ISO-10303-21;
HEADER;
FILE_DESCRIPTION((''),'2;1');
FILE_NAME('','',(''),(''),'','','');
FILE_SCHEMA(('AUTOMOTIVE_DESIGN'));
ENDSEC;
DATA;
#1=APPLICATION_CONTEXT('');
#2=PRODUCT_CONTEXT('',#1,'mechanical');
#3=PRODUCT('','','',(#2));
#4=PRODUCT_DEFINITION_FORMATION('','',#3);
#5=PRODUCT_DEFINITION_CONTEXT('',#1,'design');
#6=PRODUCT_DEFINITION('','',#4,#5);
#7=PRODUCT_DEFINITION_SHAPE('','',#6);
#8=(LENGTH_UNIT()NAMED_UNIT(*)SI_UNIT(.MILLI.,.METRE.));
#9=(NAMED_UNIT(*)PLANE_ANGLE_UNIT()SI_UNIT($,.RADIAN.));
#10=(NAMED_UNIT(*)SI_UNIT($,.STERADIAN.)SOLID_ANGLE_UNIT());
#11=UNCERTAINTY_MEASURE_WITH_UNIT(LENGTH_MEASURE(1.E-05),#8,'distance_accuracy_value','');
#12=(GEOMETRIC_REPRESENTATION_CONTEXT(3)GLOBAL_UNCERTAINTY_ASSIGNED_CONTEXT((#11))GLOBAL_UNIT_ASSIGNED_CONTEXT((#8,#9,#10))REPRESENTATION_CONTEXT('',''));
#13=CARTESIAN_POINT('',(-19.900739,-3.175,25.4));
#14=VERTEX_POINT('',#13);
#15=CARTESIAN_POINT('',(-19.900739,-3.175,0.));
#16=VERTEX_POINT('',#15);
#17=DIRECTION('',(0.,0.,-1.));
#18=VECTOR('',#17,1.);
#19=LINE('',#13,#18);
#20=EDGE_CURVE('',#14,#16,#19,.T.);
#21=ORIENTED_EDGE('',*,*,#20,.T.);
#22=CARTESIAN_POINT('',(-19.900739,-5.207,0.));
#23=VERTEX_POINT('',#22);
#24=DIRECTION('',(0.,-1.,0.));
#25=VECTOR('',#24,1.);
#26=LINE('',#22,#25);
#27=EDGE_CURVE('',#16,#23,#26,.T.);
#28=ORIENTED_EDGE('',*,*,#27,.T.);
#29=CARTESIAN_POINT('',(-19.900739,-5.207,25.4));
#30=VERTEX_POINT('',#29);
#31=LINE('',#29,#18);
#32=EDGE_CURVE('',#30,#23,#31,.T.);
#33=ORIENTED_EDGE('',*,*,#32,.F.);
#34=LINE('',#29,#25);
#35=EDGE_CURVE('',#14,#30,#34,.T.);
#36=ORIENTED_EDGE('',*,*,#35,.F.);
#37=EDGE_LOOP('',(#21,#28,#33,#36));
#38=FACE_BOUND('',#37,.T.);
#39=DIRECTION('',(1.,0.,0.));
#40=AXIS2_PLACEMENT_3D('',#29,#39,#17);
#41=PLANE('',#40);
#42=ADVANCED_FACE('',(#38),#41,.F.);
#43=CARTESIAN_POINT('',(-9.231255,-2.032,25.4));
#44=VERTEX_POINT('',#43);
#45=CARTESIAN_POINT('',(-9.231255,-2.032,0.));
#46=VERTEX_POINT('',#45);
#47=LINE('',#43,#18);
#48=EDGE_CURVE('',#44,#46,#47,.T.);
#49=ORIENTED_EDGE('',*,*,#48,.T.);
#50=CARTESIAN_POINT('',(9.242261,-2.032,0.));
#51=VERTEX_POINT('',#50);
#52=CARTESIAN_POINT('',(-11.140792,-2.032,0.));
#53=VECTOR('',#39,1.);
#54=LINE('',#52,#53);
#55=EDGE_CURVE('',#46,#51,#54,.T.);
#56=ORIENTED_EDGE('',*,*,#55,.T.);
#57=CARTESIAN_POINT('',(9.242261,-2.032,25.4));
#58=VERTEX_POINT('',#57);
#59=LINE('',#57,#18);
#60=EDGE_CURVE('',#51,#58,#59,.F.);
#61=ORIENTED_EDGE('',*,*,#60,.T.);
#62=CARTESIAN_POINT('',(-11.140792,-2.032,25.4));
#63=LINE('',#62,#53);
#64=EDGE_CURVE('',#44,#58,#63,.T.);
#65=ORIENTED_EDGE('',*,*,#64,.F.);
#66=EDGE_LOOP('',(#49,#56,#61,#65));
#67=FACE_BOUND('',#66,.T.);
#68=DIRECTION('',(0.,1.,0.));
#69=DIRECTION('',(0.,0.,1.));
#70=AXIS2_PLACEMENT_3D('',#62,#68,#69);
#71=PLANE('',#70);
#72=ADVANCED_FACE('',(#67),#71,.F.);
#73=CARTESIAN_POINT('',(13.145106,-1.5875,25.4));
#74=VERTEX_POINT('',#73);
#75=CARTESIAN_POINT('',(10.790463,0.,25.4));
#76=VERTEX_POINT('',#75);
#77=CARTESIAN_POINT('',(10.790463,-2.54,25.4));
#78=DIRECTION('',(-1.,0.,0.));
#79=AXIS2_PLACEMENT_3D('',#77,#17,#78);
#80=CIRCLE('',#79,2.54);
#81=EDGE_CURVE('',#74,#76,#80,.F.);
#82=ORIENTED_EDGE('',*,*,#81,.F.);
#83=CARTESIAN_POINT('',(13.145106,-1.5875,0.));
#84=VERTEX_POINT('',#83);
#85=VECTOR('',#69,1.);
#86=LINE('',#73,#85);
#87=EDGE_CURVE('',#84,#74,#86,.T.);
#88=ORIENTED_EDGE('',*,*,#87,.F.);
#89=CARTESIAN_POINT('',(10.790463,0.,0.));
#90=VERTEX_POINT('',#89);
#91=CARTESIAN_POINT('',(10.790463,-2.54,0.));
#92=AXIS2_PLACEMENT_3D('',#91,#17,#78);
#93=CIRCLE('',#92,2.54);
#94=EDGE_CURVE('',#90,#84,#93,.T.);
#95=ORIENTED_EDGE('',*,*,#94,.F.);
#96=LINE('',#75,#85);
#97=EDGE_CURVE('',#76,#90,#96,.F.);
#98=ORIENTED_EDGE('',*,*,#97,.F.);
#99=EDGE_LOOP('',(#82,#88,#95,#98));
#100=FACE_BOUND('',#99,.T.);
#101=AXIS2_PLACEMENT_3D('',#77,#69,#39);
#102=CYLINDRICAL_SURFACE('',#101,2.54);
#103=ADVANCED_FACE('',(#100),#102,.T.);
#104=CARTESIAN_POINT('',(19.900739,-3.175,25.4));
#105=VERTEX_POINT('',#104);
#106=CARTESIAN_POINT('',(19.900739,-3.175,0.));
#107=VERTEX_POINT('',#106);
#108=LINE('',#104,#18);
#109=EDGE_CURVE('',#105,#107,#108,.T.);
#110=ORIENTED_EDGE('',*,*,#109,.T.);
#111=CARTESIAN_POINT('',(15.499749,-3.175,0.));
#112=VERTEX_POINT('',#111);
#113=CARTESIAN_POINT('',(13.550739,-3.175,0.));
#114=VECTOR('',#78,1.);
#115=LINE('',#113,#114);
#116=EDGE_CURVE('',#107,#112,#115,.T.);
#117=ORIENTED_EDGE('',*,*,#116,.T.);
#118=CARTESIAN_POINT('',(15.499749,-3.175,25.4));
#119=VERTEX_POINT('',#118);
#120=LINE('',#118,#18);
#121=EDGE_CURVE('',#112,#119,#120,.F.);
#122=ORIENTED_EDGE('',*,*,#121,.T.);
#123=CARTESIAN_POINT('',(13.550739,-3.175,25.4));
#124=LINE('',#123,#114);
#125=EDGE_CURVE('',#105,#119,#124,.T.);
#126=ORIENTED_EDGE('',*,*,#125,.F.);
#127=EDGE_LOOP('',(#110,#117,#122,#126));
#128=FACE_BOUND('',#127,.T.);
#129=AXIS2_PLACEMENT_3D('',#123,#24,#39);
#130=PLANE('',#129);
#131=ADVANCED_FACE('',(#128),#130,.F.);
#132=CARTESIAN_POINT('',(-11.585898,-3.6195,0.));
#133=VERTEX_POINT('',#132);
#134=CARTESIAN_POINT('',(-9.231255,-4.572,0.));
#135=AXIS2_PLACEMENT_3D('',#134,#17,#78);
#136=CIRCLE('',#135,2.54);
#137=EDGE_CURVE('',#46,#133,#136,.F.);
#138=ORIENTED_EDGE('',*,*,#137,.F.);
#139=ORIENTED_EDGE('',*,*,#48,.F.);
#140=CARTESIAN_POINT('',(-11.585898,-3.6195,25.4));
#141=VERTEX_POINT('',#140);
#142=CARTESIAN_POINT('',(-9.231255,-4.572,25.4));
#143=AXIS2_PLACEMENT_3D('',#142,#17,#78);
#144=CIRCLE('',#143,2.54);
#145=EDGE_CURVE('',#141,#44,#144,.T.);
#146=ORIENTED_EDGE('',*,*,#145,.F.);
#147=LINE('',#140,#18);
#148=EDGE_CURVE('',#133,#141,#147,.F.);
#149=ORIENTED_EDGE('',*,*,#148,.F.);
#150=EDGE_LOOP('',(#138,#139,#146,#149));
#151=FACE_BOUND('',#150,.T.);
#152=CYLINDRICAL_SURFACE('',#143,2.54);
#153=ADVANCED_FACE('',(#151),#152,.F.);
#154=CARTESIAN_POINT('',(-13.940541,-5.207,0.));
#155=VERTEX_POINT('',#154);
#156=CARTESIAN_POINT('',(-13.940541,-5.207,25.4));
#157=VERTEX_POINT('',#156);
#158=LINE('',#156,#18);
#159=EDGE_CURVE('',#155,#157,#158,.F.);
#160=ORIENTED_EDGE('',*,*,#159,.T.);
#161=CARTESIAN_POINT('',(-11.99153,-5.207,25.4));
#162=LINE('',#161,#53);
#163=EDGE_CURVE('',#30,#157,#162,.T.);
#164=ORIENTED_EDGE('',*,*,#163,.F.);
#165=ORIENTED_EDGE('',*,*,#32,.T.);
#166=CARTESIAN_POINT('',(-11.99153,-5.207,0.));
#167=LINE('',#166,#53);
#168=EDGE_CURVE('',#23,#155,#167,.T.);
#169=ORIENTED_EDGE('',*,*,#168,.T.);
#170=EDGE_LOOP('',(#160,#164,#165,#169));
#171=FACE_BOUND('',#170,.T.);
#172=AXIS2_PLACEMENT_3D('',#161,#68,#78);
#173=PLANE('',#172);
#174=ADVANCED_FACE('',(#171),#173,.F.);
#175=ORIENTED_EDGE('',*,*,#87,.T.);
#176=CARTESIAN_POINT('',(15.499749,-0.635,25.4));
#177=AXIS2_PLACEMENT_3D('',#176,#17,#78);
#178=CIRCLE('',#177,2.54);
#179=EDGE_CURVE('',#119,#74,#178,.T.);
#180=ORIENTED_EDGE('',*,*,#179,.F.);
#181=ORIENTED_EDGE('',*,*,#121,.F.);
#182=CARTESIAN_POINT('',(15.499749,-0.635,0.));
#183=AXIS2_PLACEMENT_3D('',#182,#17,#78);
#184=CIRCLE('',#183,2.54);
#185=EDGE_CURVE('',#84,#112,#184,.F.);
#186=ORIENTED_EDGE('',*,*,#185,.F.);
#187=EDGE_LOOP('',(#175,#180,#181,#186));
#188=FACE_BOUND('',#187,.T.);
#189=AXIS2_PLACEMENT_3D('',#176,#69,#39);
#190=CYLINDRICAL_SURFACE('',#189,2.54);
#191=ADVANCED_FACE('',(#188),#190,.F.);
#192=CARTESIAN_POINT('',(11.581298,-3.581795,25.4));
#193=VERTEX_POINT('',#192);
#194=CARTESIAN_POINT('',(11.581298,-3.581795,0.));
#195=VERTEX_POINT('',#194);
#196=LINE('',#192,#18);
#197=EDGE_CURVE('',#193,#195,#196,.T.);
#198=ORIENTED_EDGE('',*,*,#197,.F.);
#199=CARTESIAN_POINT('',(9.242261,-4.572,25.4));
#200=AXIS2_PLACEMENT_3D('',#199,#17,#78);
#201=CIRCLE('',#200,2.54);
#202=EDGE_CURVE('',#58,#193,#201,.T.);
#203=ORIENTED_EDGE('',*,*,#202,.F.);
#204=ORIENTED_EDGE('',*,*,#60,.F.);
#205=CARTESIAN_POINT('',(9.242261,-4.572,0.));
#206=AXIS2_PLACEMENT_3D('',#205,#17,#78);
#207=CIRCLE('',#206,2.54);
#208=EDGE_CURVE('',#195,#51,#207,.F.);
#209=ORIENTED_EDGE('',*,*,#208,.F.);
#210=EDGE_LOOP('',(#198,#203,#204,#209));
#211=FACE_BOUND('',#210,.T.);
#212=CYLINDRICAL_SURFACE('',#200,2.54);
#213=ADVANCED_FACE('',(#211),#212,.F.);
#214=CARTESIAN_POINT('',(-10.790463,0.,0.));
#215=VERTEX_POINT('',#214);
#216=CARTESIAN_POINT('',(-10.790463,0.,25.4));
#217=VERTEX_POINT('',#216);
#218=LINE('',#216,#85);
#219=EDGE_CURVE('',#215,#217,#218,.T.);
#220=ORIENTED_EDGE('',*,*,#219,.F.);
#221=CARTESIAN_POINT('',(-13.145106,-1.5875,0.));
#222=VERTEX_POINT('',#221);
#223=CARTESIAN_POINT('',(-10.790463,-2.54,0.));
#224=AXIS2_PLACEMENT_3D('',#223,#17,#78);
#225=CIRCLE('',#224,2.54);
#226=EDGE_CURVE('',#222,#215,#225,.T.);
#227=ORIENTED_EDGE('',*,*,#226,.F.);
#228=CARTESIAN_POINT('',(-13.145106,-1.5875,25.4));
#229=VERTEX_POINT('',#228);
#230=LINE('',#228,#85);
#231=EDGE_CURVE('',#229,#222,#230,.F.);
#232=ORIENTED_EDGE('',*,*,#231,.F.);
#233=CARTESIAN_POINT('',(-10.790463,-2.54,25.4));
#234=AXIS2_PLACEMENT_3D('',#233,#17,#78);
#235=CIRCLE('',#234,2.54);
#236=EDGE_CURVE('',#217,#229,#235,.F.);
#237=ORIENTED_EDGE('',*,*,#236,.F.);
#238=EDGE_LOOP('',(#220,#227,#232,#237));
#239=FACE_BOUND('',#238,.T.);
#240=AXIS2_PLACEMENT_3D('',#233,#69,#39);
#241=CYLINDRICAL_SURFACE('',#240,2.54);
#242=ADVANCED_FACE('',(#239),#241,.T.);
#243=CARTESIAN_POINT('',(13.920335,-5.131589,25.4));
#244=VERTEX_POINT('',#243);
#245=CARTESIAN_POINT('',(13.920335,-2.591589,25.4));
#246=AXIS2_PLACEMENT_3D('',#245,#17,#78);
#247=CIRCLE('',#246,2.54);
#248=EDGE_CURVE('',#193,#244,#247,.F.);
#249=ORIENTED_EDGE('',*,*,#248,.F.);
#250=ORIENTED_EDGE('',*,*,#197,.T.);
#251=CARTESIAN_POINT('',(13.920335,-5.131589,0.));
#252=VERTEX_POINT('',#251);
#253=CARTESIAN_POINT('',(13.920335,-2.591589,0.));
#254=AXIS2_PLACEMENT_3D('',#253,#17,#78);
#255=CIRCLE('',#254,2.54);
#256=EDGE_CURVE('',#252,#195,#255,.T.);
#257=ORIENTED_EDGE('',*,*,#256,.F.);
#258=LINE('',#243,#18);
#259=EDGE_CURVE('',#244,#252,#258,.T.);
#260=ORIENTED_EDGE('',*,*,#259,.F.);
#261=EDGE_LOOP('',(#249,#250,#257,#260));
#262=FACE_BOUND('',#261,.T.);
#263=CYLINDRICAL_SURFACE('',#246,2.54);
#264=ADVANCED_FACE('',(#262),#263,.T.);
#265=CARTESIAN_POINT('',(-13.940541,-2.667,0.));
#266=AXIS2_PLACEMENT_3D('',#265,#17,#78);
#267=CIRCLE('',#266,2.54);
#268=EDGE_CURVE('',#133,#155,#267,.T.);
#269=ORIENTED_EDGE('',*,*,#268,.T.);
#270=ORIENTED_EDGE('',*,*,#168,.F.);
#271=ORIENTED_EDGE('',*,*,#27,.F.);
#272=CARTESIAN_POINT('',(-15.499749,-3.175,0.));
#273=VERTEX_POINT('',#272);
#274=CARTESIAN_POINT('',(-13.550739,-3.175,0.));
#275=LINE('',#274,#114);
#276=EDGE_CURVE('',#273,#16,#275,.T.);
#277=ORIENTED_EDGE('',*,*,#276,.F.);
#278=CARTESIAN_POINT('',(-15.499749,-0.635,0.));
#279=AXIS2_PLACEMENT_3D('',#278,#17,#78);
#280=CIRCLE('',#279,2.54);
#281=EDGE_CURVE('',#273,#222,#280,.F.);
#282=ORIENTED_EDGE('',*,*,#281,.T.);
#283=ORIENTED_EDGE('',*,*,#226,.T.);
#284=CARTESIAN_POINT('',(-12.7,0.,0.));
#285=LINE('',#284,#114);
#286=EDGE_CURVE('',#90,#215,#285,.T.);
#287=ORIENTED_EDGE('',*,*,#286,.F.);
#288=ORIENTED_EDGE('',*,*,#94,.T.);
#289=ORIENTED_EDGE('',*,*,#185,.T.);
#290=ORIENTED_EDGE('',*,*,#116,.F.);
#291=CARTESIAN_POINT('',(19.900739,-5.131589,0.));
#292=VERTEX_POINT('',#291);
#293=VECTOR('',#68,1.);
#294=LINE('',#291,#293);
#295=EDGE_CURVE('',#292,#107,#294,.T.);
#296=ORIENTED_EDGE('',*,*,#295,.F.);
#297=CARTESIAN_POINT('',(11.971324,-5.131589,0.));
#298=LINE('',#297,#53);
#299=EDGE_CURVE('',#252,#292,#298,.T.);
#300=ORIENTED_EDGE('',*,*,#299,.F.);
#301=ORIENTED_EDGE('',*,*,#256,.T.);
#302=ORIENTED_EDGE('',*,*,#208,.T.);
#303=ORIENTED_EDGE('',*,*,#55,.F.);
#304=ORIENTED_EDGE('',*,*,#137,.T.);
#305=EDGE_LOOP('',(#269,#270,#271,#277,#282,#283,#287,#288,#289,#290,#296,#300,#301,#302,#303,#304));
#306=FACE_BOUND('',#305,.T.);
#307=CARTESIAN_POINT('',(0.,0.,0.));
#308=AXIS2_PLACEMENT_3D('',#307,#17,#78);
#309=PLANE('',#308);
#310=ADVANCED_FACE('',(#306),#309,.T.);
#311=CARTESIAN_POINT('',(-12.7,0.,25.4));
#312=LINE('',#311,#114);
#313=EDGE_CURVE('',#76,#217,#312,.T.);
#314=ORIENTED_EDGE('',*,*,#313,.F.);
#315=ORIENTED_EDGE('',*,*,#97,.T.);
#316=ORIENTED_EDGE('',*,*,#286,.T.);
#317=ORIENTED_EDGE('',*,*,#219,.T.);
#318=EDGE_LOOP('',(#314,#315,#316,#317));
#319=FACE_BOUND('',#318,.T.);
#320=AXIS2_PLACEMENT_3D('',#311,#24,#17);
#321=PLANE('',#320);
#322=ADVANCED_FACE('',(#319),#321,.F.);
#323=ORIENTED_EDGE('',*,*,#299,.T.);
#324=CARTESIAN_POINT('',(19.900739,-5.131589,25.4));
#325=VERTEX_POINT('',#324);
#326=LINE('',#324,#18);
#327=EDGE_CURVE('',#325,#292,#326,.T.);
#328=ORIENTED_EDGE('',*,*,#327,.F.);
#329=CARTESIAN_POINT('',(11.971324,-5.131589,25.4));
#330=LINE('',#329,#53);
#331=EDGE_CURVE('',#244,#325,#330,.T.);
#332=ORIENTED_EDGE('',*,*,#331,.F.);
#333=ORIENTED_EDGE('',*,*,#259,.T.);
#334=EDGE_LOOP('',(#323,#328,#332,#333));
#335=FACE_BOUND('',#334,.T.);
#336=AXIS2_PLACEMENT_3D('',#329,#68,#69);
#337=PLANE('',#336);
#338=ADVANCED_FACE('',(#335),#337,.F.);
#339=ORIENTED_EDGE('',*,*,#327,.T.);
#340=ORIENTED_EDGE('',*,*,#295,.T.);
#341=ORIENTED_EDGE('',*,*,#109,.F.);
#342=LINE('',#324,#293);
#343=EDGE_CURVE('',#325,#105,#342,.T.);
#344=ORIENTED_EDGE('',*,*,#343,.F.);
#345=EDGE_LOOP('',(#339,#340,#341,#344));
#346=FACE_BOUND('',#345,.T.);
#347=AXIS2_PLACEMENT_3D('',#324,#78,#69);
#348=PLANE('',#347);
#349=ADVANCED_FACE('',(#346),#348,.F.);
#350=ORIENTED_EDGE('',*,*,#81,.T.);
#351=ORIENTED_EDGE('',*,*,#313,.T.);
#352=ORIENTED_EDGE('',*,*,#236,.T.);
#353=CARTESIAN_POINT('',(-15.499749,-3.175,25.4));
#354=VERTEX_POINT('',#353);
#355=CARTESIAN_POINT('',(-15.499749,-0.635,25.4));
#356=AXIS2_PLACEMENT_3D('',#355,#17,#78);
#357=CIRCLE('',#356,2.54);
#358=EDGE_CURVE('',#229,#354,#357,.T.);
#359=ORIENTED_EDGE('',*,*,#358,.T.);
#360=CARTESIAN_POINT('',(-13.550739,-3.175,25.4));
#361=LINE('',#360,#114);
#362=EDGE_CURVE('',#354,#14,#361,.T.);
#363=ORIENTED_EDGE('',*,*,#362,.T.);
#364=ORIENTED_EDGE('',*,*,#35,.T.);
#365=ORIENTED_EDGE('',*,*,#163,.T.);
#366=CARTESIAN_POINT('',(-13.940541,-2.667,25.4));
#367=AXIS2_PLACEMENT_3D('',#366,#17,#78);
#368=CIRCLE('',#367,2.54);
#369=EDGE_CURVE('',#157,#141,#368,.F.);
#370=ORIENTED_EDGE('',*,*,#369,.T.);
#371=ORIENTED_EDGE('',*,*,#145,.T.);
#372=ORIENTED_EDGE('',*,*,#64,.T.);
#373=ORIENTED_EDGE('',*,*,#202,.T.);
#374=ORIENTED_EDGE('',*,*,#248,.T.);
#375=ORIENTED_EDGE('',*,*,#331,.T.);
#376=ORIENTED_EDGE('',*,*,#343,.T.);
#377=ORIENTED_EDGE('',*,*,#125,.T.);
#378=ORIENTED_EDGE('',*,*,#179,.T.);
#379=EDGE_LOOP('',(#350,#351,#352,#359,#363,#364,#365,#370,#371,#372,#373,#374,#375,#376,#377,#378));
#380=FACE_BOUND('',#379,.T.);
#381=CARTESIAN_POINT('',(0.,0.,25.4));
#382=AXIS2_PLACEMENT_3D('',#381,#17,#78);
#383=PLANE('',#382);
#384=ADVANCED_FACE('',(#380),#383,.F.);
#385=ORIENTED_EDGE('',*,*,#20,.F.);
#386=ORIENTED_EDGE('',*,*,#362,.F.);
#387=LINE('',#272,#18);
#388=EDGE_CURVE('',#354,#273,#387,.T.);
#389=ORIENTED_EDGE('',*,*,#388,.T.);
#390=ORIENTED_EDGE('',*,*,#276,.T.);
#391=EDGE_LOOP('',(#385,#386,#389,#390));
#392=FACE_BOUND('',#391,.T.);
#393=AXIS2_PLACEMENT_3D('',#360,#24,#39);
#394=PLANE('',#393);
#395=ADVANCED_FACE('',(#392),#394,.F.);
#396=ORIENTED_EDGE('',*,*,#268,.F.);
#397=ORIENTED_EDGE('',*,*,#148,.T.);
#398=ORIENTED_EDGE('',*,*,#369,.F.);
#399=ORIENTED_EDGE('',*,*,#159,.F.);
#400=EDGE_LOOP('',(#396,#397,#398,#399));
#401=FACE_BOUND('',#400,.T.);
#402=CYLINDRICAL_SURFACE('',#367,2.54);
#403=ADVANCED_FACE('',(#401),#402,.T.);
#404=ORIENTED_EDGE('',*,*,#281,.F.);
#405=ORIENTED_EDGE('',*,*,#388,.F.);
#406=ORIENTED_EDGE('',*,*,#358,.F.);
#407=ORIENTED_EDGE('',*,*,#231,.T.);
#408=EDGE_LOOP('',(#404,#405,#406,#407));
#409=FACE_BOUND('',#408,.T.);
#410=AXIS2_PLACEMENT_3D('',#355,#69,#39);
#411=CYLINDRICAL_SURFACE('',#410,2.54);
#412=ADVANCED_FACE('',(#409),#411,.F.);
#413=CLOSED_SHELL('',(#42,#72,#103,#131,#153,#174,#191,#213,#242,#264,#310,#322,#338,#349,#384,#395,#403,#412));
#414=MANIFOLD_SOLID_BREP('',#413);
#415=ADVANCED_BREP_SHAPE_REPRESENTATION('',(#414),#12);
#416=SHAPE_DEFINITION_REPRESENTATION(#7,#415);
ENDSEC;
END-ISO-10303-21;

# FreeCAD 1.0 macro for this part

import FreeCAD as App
import Part
import Sketcher
from FreeCAD import Vector
Q = App.Units.Quantity


def edges_at(feature, points):
    """Names of the edges that pass closest to the given points."""
    edges = feature.Shape.Edges
    near = lambda p: min(range(len(edges)), key=lambda i: edges[i].distToShape(Part.Vertex(*p))[0])
    return sorted({f"Edge{near(p) + 1}" for p in points})

doc = App.newDocument("Part")
body = doc.addObject("PartDesign::Body", "Body")

# Sketch on XY plane
sketch1 = body.newObject("Sketcher::SketchObject", "Sketch")
sketch1.AttachmentSupport = (doc.getObject("XY_Plane"), [""])
sketch1.MapMode = "FlatFace"
sketch1.addGeometry([
    Part.LineSegment(Vector(12.7, 0, 0), Vector(-12.7, 0, 0)),  # 0
    Part.LineSegment(Vector(-12.7, 0, 0), Vector(-13.6, -3.2, 0)),  # 1
    Part.LineSegment(Vector(-13.6, -3.2, 0), Vector(-19.9, -3.2, 0)),  # 2
    Part.LineSegment(Vector(-19.9, -3.2, 0), Vector(-19.9, -5.2, 0)),  # 3
    Part.LineSegment(Vector(-19.9, -5.2, 0), Vector(-12, -5.2, 0)),  # 4
    Part.LineSegment(Vector(-12, -5.2, 0), Vector(-11.1, -2, 0)),  # 5
    Part.LineSegment(Vector(-11.1, -2, 0), Vector(11.1, -2, 0)),  # 6
    Part.LineSegment(Vector(11.1, -2, 0), Vector(12, -5.1, 0)),  # 7
    Part.LineSegment(Vector(12, -5.1, 0), Vector(19.9, -5.1, 0)),  # 8
    Part.LineSegment(Vector(19.9, -5.1, 0), Vector(19.9, -3.2, 0)),  # 9
    Part.LineSegment(Vector(19.9, -3.2, 0), Vector(13.6, -3.2, 0)),  # 10
    Part.LineSegment(Vector(13.6, -3.2, 0), Vector(12.7, 0, 0)),  # 11
], False)
sketch1.addConstraint([
    Sketcher.Constraint("Coincident", 0, 2, 1, 1),
    Sketcher.Constraint("Coincident", 1, 2, 2, 1),
    Sketcher.Constraint("Coincident", 2, 2, 3, 1),
    Sketcher.Constraint("Coincident", 3, 2, 4, 1),
    Sketcher.Constraint("Coincident", 4, 2, 5, 1),
    Sketcher.Constraint("Coincident", 5, 2, 6, 1),
    Sketcher.Constraint("Coincident", 6, 2, 7, 1),
    Sketcher.Constraint("Coincident", 7, 2, 8, 1),
    Sketcher.Constraint("Coincident", 8, 2, 9, 1),
    Sketcher.Constraint("Coincident", 9, 2, 10, 1),
    Sketcher.Constraint("Coincident", 10, 2, 11, 1),
    Sketcher.Constraint("Coincident", 11, 2, 0, 1),
    Sketcher.Constraint("Horizontal", 0),
    Sketcher.Constraint("Horizontal", 2),
    Sketcher.Constraint("Vertical", 3),
    Sketcher.Constraint("Horizontal", 4),
    Sketcher.Constraint("Horizontal", 6),
    Sketcher.Constraint("Horizontal", 8),
    Sketcher.Constraint("Vertical", 9),
    Sketcher.Constraint("Horizontal", 10),
    Sketcher.Constraint("Symmetric", 0, 2, 11, 2, -1, 1),
    Sketcher.Constraint("Symmetric", 2, 2, 9, 2, -2),
    Sketcher.Constraint("Parallel", 1, 5),
    Sketcher.Constraint("Parallel", 7, 11),
    Sketcher.Constraint("Equal", 2, 10),
    Sketcher.Constraint("Equal", 1, 5),
    Sketcher.Constraint("DistanceX", 0, 2, 0, 1, Q("1 in")),
    Sketcher.Constraint("Angle", 1, Q("-105 deg")),
    Sketcher.Constraint("DistanceX", 2, 2, 2, 1, Q("0.25 in")),
    Sketcher.Constraint("DistanceY", 3, 2, 3, 1, Q("0.08 in")),
    Sketcher.Constraint("DistanceY", 1, 2, -1, 1, Q("0.125 in")),
    Sketcher.Constraint("DistanceX", 4, 1, 4, 2, 7.909208),
    Sketcher.Constraint("DistanceY", 9, 1, 9, 2, 1.956589),
    Sketcher.Constraint("DistanceX", 6, 1, 6, 2, 22.281583),
])
pad1 = body.newObject("PartDesign::Pad", "Pad")
pad1.Profile = sketch1
pad1.Length = Q("1 in")
doc.recompute()

fillet = body.newObject("PartDesign::Fillet", "Fillet")
fillet.Base = (pad1, edges_at(pad1, [(13.551, -3.175, 12.7)]))
fillet.Radius = Q("0.1 in")
doc.recompute()

fillet2 = body.newObject("PartDesign::Fillet", "Fillet001")
fillet2.Base = (fillet, edges_at(fillet, [(12.7, 0, 12.7)]))
fillet2.Radius = Q("0.1 in")
doc.recompute()

fillet3 = body.newObject("PartDesign::Fillet", "Fillet002")
fillet3.Base = (fillet2, edges_at(fillet2, [(-11.992, -5.207, 12.7), (11.971, -5.132, 12.7)]))
fillet3.Radius = Q("0.1 in")
doc.recompute()

fillet4 = body.newObject("PartDesign::Fillet", "Fillet003")
fillet4.Base = (fillet3, edges_at(fillet3, [(-13.551, -3.175, 12.7), (11.141, -2.032, 12.7), (-11.141, -2.032, 12.7)]))
fillet4.Radius = Q("0.1 in")
doc.recompute()

fillet5 = body.newObject("PartDesign::Fillet", "Fillet004")
fillet5.Base = (fillet4, edges_at(fillet4, [(-12.7, 0, 12.7)]))
fillet5.Radius = Q("0.1 in")

doc.recompute()
